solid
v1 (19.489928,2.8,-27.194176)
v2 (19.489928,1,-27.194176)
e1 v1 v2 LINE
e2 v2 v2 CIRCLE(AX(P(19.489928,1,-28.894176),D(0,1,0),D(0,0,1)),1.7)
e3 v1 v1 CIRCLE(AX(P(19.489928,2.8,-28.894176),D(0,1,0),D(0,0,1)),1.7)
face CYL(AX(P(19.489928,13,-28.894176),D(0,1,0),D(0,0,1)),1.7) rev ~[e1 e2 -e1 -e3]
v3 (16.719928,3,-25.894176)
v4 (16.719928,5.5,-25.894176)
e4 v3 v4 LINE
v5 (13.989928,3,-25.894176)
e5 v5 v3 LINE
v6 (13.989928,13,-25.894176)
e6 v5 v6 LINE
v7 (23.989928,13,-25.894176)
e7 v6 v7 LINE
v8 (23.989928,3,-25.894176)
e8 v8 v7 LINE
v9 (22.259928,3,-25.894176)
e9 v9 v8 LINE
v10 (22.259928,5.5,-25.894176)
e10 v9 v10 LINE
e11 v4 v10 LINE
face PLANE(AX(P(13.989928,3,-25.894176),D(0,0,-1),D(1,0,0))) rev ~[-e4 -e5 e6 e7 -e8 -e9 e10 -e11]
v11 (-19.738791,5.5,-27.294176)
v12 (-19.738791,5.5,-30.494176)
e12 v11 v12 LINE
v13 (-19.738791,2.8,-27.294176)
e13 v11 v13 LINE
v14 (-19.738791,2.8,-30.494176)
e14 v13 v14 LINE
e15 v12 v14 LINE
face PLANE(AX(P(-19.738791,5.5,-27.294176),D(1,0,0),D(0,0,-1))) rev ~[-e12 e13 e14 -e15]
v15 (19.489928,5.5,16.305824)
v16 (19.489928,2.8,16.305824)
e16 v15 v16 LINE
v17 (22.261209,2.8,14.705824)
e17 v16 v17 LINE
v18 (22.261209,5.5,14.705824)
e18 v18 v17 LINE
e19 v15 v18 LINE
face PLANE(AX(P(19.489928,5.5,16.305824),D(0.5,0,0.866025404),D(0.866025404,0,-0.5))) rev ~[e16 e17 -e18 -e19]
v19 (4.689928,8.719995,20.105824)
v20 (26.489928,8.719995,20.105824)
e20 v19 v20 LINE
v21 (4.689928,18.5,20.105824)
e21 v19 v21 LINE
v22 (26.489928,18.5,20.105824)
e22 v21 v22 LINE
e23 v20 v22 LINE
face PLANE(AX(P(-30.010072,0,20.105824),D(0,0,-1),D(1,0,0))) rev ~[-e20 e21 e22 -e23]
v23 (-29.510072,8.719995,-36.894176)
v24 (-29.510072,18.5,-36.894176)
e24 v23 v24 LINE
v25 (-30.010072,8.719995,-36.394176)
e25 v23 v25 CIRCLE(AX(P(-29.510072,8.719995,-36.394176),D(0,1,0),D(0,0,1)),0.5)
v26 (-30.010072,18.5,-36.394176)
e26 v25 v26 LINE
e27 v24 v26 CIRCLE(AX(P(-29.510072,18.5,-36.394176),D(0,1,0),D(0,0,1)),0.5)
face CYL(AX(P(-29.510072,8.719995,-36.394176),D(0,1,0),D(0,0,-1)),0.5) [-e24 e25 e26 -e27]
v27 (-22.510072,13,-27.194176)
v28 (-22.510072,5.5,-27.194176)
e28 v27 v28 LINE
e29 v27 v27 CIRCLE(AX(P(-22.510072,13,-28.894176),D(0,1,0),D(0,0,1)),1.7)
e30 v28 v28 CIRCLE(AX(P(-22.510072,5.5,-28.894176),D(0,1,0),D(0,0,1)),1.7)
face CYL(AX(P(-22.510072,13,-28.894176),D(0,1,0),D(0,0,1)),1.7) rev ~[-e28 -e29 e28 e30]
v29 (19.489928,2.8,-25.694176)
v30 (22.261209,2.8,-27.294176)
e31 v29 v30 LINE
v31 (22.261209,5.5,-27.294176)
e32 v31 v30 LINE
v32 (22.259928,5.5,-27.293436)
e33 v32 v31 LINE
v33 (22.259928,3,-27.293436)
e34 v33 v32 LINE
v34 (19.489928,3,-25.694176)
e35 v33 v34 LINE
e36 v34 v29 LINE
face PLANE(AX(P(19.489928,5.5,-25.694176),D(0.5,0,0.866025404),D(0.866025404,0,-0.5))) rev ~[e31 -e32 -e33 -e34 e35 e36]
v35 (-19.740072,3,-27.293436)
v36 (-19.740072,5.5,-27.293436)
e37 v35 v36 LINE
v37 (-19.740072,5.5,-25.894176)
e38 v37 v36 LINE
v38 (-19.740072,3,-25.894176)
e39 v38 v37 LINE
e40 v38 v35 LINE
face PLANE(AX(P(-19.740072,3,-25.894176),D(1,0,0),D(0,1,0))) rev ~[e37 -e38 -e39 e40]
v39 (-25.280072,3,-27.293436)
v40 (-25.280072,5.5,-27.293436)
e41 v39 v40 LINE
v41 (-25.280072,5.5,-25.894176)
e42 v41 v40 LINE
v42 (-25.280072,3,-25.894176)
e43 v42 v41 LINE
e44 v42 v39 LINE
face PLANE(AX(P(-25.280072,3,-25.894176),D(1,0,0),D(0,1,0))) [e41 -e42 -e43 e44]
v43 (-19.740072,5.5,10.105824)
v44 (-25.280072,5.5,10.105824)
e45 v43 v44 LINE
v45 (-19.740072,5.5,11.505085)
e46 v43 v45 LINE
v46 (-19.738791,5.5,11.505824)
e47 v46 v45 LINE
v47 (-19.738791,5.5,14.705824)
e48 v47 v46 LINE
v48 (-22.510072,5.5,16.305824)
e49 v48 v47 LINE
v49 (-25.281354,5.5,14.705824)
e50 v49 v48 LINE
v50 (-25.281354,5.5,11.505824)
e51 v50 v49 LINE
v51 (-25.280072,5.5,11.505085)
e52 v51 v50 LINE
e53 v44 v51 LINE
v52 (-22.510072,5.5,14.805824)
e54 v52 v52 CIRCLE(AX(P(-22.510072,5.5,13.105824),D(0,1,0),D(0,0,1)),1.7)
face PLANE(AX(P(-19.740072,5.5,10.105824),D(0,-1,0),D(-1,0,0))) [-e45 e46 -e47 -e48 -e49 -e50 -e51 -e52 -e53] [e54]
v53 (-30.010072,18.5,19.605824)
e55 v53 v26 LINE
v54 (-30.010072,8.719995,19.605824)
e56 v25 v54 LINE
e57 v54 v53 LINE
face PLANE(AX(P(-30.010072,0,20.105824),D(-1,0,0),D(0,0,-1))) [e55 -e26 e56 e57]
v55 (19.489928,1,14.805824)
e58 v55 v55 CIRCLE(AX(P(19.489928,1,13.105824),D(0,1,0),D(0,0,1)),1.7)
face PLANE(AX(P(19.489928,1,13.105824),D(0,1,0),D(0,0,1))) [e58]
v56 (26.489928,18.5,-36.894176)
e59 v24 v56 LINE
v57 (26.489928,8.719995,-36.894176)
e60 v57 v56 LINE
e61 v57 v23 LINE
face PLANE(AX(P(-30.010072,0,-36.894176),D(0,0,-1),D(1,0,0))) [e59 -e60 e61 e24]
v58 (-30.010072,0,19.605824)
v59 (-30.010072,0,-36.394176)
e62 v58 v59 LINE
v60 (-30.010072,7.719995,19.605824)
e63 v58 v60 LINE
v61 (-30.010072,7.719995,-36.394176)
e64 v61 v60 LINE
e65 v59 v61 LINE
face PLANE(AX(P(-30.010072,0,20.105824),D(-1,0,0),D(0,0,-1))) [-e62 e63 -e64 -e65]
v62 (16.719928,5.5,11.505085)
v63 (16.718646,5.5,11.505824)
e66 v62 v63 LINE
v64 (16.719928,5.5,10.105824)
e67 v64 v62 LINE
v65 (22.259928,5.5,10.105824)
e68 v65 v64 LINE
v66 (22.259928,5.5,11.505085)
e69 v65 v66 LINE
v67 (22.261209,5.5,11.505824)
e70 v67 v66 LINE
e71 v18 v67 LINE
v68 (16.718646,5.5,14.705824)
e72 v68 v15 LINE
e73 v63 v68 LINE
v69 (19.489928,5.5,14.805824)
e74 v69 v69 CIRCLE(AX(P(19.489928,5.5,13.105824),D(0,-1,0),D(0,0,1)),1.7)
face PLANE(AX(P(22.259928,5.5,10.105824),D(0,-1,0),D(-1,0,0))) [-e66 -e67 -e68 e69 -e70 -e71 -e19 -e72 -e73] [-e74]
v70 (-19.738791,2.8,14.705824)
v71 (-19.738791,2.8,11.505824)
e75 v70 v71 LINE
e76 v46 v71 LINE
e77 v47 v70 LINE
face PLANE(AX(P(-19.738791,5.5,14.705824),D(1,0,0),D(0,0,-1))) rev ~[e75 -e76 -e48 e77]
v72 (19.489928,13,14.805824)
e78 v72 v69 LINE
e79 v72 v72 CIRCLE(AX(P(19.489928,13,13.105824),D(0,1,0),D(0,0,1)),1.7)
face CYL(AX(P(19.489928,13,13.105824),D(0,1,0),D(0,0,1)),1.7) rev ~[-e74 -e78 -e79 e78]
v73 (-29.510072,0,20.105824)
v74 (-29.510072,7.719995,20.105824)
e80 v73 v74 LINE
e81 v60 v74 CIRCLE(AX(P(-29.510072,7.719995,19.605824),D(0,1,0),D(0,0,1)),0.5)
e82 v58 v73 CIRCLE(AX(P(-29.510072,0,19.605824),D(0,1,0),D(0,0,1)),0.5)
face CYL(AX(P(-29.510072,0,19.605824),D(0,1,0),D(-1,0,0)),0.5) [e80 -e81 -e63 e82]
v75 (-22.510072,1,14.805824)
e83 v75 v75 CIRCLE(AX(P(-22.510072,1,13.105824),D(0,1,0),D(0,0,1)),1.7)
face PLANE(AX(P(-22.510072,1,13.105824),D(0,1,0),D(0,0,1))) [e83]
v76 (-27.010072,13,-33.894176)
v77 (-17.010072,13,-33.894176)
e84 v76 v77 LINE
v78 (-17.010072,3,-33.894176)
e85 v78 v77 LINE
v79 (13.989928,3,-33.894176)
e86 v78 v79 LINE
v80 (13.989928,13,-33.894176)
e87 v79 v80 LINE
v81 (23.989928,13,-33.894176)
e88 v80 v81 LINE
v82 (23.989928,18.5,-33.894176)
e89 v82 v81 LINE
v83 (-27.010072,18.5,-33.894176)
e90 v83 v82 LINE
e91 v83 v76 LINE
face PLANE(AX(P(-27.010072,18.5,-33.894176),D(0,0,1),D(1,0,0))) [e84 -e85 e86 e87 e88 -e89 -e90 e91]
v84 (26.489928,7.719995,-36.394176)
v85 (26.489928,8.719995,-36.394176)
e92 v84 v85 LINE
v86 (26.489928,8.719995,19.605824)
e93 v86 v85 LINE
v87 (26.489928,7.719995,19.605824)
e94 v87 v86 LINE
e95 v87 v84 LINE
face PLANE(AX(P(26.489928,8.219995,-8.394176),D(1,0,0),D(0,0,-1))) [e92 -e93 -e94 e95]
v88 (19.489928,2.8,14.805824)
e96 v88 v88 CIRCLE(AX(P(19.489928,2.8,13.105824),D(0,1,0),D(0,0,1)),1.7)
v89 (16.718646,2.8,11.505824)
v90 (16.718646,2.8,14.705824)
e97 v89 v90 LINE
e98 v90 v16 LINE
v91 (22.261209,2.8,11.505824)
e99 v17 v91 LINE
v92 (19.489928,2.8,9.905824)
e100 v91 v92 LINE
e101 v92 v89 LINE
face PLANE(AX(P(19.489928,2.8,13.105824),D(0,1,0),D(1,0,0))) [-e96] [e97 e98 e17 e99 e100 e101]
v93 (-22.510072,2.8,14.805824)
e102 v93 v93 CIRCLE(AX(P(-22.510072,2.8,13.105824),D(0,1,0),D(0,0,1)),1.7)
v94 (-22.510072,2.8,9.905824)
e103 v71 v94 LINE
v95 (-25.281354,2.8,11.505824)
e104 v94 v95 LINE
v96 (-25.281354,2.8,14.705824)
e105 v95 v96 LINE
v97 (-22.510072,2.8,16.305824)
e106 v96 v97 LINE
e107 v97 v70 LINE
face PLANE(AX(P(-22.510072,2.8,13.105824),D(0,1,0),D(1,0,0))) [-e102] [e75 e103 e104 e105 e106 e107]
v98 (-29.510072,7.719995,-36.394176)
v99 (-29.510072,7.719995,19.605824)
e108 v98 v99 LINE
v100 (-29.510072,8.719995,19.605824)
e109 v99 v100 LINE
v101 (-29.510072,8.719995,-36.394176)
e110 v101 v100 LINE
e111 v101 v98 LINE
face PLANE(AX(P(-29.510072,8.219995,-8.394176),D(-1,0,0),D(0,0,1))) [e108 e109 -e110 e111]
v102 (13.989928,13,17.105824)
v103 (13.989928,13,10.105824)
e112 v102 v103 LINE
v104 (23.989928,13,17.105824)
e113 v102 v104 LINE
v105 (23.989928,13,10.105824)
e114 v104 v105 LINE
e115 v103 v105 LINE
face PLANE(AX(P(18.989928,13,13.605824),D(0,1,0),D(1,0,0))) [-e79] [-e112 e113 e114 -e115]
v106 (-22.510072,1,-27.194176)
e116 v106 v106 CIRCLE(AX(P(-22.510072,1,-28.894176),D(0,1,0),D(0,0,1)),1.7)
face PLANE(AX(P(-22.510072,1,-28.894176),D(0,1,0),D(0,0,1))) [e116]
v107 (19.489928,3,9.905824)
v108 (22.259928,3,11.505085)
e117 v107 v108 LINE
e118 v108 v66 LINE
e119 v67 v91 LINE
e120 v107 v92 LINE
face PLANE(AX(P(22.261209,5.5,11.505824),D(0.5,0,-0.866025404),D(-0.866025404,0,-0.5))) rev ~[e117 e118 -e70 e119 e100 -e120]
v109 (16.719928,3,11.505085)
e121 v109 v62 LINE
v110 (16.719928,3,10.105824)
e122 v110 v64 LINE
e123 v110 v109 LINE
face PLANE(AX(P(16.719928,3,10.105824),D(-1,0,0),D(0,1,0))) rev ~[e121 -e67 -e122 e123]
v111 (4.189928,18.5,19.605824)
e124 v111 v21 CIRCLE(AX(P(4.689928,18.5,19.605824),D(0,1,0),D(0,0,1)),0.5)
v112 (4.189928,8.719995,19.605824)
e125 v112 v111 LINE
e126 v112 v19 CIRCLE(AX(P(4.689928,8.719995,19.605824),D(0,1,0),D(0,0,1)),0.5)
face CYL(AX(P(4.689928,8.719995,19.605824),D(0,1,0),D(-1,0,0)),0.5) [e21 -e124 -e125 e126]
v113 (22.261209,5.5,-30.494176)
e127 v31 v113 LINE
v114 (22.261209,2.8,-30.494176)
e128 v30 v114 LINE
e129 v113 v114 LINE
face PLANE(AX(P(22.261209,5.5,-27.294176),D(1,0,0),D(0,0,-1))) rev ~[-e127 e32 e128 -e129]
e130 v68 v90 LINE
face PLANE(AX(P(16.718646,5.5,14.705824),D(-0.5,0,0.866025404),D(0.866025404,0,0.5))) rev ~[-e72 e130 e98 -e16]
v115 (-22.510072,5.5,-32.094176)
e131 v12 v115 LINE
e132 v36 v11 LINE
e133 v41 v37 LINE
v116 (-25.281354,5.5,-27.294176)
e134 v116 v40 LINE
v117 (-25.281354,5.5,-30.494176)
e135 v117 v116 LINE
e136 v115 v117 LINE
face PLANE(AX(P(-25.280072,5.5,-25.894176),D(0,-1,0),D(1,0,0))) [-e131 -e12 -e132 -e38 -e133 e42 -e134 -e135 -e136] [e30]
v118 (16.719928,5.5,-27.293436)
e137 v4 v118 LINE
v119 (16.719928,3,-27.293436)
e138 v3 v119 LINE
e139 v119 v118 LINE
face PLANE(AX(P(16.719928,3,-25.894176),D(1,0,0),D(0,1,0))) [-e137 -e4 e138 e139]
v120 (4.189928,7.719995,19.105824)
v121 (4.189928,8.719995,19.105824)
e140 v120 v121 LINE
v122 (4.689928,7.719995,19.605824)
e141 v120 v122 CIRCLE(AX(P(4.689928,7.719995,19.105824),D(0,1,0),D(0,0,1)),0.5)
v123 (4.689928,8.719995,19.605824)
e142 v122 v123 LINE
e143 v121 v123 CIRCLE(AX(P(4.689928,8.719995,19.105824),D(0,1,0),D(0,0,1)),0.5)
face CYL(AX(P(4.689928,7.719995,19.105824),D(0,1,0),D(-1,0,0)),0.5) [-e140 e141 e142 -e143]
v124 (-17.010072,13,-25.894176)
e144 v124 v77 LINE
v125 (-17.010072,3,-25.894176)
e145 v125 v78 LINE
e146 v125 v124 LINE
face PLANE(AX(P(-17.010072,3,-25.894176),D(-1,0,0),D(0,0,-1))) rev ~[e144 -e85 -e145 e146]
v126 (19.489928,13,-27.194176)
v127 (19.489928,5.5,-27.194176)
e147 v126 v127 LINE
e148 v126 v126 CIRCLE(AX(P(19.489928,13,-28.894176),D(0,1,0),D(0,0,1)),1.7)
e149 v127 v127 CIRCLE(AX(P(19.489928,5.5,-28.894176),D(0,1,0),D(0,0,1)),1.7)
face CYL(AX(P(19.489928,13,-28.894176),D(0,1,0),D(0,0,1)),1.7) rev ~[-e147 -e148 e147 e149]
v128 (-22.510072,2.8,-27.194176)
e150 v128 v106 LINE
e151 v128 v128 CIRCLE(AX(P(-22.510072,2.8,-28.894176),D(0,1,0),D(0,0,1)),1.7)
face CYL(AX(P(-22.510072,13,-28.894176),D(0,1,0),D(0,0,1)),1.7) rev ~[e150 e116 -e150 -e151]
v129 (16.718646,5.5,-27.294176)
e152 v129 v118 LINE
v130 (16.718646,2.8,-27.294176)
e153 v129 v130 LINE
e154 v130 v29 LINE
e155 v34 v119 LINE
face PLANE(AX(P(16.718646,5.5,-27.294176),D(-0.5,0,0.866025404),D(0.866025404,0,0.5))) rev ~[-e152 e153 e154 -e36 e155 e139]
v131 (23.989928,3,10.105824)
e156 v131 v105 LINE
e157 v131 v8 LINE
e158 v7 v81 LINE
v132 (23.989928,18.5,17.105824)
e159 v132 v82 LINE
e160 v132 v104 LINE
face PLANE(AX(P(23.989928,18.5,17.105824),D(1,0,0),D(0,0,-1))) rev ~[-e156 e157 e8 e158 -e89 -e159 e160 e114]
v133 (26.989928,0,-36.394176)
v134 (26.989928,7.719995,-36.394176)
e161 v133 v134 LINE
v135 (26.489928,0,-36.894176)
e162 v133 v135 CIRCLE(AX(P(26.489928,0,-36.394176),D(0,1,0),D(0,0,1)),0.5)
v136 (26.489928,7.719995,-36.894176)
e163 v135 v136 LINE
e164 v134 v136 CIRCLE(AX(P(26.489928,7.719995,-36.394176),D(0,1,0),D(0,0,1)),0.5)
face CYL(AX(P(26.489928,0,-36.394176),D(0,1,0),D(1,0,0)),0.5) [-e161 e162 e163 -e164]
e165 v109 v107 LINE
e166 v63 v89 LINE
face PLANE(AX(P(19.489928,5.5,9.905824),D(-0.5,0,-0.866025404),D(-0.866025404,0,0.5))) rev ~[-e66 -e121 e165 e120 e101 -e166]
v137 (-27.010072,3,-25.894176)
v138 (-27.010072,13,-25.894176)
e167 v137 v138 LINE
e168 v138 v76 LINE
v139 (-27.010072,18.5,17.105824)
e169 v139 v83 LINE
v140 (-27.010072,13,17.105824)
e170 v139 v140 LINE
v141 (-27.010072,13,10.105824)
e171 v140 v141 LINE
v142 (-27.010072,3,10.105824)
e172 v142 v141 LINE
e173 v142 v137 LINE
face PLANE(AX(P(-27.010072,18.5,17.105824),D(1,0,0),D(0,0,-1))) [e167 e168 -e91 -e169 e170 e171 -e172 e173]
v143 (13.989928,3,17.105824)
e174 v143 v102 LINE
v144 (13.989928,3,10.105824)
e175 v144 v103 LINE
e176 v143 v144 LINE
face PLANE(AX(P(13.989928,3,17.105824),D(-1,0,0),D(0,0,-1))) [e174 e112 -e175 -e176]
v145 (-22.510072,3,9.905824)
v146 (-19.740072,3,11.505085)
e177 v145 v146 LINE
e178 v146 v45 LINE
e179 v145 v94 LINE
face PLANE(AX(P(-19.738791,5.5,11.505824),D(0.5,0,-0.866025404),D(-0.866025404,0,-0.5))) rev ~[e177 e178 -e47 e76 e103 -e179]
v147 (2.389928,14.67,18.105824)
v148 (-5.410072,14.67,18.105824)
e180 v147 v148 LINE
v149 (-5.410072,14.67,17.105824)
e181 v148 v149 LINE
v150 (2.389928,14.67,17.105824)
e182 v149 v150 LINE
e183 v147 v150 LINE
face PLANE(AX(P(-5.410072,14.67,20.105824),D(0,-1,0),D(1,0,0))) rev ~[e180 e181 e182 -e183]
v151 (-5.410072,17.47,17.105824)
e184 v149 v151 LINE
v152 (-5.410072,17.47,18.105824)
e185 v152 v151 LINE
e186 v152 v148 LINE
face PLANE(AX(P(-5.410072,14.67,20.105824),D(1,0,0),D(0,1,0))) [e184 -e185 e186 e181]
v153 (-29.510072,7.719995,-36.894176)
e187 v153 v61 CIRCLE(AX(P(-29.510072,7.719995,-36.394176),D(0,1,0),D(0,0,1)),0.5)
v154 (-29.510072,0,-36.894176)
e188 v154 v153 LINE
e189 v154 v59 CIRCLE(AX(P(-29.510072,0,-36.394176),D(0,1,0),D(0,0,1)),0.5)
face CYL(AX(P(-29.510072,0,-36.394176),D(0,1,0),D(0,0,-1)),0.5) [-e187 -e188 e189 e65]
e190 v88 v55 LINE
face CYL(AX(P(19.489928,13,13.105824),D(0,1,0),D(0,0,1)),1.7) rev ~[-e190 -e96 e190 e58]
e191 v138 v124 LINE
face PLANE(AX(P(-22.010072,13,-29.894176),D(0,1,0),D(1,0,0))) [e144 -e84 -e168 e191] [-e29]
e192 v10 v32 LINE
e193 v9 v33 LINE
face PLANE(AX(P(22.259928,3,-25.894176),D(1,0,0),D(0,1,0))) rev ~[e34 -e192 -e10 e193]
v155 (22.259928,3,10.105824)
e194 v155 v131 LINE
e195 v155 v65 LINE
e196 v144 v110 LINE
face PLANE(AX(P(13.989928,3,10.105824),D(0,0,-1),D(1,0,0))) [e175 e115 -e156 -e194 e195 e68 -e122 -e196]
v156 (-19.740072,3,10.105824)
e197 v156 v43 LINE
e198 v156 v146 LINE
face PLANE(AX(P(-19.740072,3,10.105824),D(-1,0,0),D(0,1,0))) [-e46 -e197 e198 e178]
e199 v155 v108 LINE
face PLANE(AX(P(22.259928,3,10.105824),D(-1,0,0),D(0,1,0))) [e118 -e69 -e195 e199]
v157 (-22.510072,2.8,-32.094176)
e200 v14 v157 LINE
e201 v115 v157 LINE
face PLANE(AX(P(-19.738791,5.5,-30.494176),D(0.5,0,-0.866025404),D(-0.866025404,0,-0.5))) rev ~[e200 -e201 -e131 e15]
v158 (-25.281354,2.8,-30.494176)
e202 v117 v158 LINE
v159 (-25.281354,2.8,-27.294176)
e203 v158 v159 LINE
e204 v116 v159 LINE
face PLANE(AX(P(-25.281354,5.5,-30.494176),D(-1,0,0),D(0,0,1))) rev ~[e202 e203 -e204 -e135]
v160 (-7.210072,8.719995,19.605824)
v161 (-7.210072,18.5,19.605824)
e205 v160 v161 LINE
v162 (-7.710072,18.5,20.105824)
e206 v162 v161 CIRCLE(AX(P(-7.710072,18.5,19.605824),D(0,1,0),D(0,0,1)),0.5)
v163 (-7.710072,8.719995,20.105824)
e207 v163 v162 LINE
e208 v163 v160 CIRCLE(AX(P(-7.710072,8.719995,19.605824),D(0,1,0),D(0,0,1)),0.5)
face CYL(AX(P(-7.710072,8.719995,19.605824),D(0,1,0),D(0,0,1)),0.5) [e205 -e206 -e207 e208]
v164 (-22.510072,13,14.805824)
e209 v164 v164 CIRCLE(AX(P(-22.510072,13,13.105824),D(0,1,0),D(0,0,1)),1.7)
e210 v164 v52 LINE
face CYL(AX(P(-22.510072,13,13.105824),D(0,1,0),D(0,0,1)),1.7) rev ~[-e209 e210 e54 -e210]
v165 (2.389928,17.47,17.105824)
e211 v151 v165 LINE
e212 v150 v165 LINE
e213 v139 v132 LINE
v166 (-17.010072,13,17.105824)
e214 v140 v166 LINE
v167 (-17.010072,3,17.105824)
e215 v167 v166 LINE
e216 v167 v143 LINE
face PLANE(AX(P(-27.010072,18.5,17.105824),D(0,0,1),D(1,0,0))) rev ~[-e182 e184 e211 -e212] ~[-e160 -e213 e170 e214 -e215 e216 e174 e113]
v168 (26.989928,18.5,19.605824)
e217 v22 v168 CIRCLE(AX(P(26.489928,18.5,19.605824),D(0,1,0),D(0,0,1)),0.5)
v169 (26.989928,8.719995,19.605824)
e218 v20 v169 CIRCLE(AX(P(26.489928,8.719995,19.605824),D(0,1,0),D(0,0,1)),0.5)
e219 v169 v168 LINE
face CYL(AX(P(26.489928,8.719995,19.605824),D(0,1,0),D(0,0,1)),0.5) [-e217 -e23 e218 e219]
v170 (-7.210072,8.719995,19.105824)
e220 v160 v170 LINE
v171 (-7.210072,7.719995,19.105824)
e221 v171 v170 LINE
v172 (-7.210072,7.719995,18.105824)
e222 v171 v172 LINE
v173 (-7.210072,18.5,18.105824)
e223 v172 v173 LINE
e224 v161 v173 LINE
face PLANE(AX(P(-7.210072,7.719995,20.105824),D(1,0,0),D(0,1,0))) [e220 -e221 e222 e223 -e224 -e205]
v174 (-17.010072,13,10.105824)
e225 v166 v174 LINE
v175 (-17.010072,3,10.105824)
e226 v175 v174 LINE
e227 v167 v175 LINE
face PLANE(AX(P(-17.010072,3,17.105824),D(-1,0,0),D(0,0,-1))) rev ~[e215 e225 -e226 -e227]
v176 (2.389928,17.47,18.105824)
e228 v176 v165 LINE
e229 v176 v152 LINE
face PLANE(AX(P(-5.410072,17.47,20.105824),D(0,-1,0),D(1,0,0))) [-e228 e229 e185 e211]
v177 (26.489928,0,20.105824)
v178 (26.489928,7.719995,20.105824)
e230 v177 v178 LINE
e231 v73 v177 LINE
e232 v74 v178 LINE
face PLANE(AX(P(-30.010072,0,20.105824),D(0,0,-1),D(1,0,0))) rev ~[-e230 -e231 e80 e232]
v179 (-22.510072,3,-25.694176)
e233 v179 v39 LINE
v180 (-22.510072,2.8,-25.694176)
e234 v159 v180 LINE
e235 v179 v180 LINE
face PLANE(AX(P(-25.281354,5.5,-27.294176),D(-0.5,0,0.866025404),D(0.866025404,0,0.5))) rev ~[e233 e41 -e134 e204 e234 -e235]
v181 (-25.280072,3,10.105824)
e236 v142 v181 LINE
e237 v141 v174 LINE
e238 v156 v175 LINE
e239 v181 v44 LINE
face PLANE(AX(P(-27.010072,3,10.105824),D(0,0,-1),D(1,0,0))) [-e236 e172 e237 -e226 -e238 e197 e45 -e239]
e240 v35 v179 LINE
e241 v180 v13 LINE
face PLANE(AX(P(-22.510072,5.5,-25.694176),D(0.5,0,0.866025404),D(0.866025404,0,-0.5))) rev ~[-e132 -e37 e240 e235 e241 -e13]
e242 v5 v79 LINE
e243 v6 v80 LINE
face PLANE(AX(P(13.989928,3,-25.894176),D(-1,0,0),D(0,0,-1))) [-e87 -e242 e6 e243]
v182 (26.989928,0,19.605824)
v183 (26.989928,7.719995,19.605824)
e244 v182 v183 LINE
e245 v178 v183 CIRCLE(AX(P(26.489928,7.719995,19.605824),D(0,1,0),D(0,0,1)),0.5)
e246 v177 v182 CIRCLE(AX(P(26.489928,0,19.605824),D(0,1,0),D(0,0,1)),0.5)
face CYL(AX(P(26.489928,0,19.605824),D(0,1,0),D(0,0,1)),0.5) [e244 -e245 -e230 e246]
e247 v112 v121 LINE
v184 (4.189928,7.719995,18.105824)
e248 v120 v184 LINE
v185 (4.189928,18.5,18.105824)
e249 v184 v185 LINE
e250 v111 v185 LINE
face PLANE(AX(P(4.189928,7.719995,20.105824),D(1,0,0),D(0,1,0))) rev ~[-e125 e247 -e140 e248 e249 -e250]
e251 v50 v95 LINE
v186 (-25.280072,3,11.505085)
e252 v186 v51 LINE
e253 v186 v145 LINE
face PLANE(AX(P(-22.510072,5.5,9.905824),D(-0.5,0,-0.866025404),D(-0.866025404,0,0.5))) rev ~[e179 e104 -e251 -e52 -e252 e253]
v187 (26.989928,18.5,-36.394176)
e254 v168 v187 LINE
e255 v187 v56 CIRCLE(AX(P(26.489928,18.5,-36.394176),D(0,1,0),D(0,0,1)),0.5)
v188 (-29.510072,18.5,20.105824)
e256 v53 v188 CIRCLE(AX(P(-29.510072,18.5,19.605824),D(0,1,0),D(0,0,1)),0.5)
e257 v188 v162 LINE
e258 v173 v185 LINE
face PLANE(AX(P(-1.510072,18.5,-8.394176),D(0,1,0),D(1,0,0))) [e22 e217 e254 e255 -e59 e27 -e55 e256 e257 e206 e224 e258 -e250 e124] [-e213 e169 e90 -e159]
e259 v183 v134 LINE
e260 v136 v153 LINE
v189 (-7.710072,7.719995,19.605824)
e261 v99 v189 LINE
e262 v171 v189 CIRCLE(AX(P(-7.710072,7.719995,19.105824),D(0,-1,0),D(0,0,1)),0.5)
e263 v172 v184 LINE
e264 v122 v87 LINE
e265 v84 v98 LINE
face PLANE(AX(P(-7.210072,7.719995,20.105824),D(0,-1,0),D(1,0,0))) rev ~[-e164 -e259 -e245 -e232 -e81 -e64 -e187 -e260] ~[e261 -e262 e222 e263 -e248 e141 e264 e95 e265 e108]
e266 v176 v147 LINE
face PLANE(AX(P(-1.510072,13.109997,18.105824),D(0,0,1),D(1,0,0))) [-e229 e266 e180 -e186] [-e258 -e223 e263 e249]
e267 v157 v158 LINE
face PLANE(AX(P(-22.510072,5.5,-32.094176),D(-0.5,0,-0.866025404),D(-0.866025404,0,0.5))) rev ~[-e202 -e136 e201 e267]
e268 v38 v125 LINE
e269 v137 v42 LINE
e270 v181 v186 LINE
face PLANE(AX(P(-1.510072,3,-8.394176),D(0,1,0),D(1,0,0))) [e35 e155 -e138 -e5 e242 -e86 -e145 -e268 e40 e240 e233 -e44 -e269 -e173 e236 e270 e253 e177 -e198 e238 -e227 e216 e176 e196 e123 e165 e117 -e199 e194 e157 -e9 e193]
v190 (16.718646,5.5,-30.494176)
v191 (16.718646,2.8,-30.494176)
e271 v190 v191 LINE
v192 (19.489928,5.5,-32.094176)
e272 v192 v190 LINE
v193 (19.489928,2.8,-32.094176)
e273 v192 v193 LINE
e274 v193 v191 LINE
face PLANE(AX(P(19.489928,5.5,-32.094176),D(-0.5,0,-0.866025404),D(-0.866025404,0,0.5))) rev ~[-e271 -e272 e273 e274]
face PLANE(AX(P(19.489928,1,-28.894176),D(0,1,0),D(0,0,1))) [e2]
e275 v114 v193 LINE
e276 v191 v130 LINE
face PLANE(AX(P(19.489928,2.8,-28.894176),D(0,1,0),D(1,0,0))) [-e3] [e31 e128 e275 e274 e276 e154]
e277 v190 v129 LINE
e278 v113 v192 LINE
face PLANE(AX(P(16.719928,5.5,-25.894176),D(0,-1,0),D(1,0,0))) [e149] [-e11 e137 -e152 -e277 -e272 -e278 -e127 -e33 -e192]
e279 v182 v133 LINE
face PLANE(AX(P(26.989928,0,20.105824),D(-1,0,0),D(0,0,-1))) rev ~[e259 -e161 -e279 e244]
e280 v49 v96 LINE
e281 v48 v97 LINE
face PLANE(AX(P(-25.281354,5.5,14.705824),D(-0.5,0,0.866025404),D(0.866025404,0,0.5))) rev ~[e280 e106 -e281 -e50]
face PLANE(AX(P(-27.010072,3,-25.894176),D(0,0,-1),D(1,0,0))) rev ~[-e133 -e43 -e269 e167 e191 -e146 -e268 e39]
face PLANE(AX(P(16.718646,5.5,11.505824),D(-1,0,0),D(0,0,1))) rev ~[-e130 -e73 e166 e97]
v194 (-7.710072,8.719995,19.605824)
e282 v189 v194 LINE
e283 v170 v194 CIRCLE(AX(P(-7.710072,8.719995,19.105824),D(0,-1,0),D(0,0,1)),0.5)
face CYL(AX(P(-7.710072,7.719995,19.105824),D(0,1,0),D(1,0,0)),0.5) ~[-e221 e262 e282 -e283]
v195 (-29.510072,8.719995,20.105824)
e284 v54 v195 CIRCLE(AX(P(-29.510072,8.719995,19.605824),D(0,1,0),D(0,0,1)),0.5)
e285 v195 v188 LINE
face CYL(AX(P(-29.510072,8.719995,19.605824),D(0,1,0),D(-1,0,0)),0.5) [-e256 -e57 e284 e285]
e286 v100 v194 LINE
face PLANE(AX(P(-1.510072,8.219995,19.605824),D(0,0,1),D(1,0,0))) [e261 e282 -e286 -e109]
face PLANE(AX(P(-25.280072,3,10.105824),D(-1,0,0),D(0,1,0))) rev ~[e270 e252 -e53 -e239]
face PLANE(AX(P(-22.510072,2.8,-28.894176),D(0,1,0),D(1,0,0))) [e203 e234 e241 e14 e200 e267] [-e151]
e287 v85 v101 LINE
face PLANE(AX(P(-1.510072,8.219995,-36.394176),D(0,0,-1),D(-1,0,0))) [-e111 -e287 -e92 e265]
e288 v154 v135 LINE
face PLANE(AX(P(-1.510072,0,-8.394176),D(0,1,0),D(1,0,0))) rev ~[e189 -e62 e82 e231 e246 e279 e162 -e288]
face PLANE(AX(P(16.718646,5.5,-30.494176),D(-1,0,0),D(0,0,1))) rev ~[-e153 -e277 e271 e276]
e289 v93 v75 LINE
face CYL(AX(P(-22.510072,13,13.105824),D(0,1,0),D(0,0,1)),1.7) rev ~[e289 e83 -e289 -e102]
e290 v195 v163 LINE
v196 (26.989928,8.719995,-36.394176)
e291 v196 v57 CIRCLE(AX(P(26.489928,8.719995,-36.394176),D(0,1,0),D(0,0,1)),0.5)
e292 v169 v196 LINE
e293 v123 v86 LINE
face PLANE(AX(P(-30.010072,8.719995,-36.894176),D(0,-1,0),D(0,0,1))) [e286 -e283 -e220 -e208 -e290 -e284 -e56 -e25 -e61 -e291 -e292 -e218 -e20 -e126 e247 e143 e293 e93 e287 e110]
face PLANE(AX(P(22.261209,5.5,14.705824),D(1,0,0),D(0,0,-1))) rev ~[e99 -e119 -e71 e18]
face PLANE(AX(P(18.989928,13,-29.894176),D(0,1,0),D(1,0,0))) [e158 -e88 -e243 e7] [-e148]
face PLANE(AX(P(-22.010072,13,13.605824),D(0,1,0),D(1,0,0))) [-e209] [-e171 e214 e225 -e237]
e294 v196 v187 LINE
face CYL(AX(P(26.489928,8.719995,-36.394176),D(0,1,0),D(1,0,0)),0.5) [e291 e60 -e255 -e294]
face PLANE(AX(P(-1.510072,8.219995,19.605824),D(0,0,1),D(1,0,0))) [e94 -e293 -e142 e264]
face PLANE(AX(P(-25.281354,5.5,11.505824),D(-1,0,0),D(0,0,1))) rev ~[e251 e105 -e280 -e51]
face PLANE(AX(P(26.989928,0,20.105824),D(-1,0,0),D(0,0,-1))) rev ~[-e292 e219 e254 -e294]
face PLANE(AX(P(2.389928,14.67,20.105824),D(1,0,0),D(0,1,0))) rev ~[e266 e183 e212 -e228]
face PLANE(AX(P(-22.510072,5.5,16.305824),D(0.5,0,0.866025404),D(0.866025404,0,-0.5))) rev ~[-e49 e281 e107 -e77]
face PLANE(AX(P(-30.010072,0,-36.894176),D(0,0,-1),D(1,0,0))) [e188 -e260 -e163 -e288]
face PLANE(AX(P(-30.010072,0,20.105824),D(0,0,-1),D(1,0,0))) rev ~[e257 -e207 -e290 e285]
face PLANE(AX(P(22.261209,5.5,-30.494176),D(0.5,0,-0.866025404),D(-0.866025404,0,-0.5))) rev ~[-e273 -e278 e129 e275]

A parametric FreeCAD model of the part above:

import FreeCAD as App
import Part
import Sketcher
Q = App.Units.Quantity


def edges_at(feature, points):
    """Names of the edges that pass closest to the given points."""
    edges = feature.Shape.Edges
    near = lambda p: min(range(len(edges)), key=lambda i: edges[i].distToShape(Part.Vertex(*p))[0])
    return sorted({f"Edge{near(p) + 1}" for p in points})


def add_polygon(sketch, points):
    """Adds a closed chain of lines whose ends are joined by coincident constraints."""
    first, n = sketch.GeometryCount, len(points)
    for a, b in zip(points, points[1:] + points[:1]):
        sketch.addGeometry(Part.LineSegment(App.Vector(*a, 0), App.Vector(*b, 0)), False)
    for i in range(n):
        sketch.addConstraint(Sketcher.Constraint("Coincident", first + i, 2, first + (i + 1) % n, 1))

doc = App.newDocument("Part")
body = doc.addObject("PartDesign::Body", "Body")

# Sketch on XZ plane
sketch1 = body.newObject("Sketcher::SketchObject", "Sketch")
sketch1.AttachmentSupport = (doc.getObject("XZ_Plane"), [""])
sketch1.MapMode = "FlatFace"
add_polygon(sketch1, [(-30.010072, -36.894176), (-30.010072, 20.105824), (26.989928, 20.105824), (26.989928, -36.894176)])  # lines 0-3
sketch1.addConstraint([
    Sketcher.Constraint("Vertical", 0),
    Sketcher.Constraint("Horizontal", 1),
    Sketcher.Constraint("Vertical", 2),
    Sketcher.Constraint("Horizontal", 3),
    Sketcher.Constraint("Equal", 3, 0),
    Sketcher.Constraint("DistanceX", 1, 1, 1, 2, 57.0),
    Sketcher.Constraint("DistanceX", 0, 2, -1, 1, 30.010072),
    Sketcher.Constraint("DistanceY", -1, 1, 0, 2, 20.105824),
])
pad1 = body.newObject("PartDesign::Pad", "Pad")
pad1.Profile = sketch1
pad1.Length = 18.5
pad1.Reversed = True

# Sketch on XZ plane
sketch2 = body.newObject("Sketcher::SketchObject", "Sketch001")
sketch2.AttachmentSupport = (doc.getObject("XZ_Plane"), [""])
sketch2.MapMode = "FlatFace"
sketch2.AttachmentOffset = App.Placement(App.Vector(0, 0, -18.5), App.Rotation())
add_polygon(sketch2, [(-27.010072, -33.894176), (-27.010072, 17.105824), (23.989928, 17.105824), (23.989928, -33.894176)])  # lines 0-3
sketch2.addConstraint([
    Sketcher.Constraint("Vertical", 0),
    Sketcher.Constraint("Horizontal", 1),
    Sketcher.Constraint("Vertical", 2),
    Sketcher.Constraint("Horizontal", 3),
    Sketcher.Constraint("Equal", 3, 0),
    Sketcher.Constraint("DistanceX", 1, 1, 1, 2, 51.0),
    Sketcher.Constraint("DistanceX", 0, 2, -1, 1, 27.010072),
    Sketcher.Constraint("DistanceY", -1, 1, 0, 2, 17.105824),
])
pocket1 = body.newObject("PartDesign::Pocket", "Pocket")
pocket1.Profile = sketch2
pocket1.Length = 15.5
pocket1.Reversed = True

# Sketch on XZ plane
sketch3 = body.newObject("Sketcher::SketchObject", "Sketch002")
sketch3.AttachmentSupport = (doc.getObject("XZ_Plane"), [""])
sketch3.MapMode = "FlatFace"
sketch3.AttachmentOffset = App.Placement(App.Vector(0, 0, -3), App.Rotation())
add_polygon(sketch3, [(-27.010072, -33.894176), (-27.010072, -25.894176), (-17.010072, -25.894176), (-17.010072, -33.894176)])  # lines 0-3
sketch3.addConstraint([
    Sketcher.Constraint("Vertical", 0),
    Sketcher.Constraint("Horizontal", 1),
    Sketcher.Constraint("Vertical", 2),
    Sketcher.Constraint("Horizontal", 3),
    Sketcher.Constraint("DistanceX", 1, 1, 1, 2, 10.0),
    Sketcher.Constraint("DistanceY", 0, 1, 0, 2, 8.0),
    Sketcher.Constraint("DistanceX", 0, 2, -1, 1, 27.010072),
    Sketcher.Constraint("DistanceY", 0, 2, -1, 1, 25.894176),
])
pad2 = body.newObject("PartDesign::Pad", "Pad001")
pad2.Profile = sketch3
pad2.Length = 10
pad2.Reversed = True

# Sketch on XZ plane
sketch4 = body.newObject("Sketcher::SketchObject", "Sketch003")
sketch4.AttachmentSupport = (doc.getObject("XZ_Plane"), [""])
sketch4.MapMode = "FlatFace"
sketch4.AttachmentOffset = App.Placement(App.Vector(0, 0, -3), App.Rotation())
add_polygon(sketch4, [(13.989928, -33.894176), (13.989928, -25.894176), (23.989928, -25.894176), (23.989928, -33.894176)])  # lines 0-3
sketch4.addConstraint([
    Sketcher.Constraint("Vertical", 0),
    Sketcher.Constraint("Horizontal", 1),
    Sketcher.Constraint("Vertical", 2),
    Sketcher.Constraint("Horizontal", 3),
    Sketcher.Constraint("DistanceX", 1, 1, 1, 2, 10.0),
    Sketcher.Constraint("DistanceY", 0, 1, 0, 2, 8.0),
    Sketcher.Constraint("DistanceX", -1, 1, 0, 2, 13.989928),
    Sketcher.Constraint("DistanceY", 0, 2, -1, 1, 25.894176),
])
pad3 = body.newObject("PartDesign::Pad", "Pad002")
pad3.Profile = sketch4
pad3.Length = 10
pad3.Reversed = True

# Sketch on XZ plane
sketch5 = body.newObject("Sketcher::SketchObject", "Sketch004")
sketch5.AttachmentSupport = (doc.getObject("XZ_Plane"), [""])
sketch5.MapMode = "FlatFace"
sketch5.AttachmentOffset = App.Placement(App.Vector(0, 0, -3), App.Rotation())
add_polygon(sketch5, [(13.989928, 10.105824), (13.989928, 17.105824), (23.989928, 17.105824), (23.989928, 10.105824)])  # lines 0-3
sketch5.addConstraint([
    Sketcher.Constraint("Vertical", 0),
    Sketcher.Constraint("Horizontal", 1),
    Sketcher.Constraint("Vertical", 2),
    Sketcher.Constraint("Horizontal", 3),
    Sketcher.Constraint("DistanceX", 1, 1, 1, 2, 10.0),
    Sketcher.Constraint("DistanceY", 0, 1, 0, 2, 7.0),
    Sketcher.Constraint("DistanceX", -1, 1, 0, 2, 13.989928),
    Sketcher.Constraint("DistanceY", -1, 1, 0, 2, 17.105824),
])
pad4 = body.newObject("PartDesign::Pad", "Pad003")
pad4.Profile = sketch5
pad4.Length = 10
pad4.Reversed = True

# Sketch on XZ plane
sketch6 = body.newObject("Sketcher::SketchObject", "Sketch005")
sketch6.AttachmentSupport = (doc.getObject("XZ_Plane"), [""])
sketch6.MapMode = "FlatFace"
sketch6.AttachmentOffset = App.Placement(App.Vector(0, 0, -3), App.Rotation())
add_polygon(sketch6, [(-27.010072, 10.105824), (-27.010072, 17.105824), (-17.010072, 17.105824), (-17.010072, 10.105824)])  # lines 0-3
sketch6.addConstraint([
    Sketcher.Constraint("Vertical", 0),
    Sketcher.Constraint("Horizontal", 1),
    Sketcher.Constraint("Vertical", 2),
    Sketcher.Constraint("Horizontal", 3),
    Sketcher.Constraint("DistanceX", 1, 1, 1, 2, 10.0),
    Sketcher.Constraint("DistanceY", 0, 1, 0, 2, 7.0),
    Sketcher.Constraint("DistanceX", 0, 2, -1, 1, 27.010072),
    Sketcher.Constraint("DistanceY", -1, 1, 0, 2, 17.105824),
])
pad5 = body.newObject("PartDesign::Pad", "Pad004")
pad5.Profile = sketch6
pad5.Length = 10
pad5.Reversed = True

# Sketch on XZ plane
sketch7 = body.newObject("Sketcher::SketchObject", "Sketch006")
sketch7.AttachmentSupport = (doc.getObject("XZ_Plane"), [""])
sketch7.MapMode = "FlatFace"
sketch7.AttachmentOffset = App.Placement(App.Vector(0, 0, -13), App.Rotation())
sketch7.addGeometry(Part.Circle(App.Vector(19.489928, 13.105824, 0), App.Vector(0, 0, 1), 1.7), False)
sketch7.addConstraint([
    Sketcher.Constraint("Diameter", 0, 3.4),
    Sketcher.Constraint("DistanceX", -1, 1, 0, 3, 19.489928),
    Sketcher.Constraint("DistanceY", -1, 1, 0, 3, 13.105824),
])
pocket2 = body.newObject("PartDesign::Pocket", "Pocket001")
pocket2.Profile = sketch7
pocket2.Length = 12
pocket2.Reversed = True

# Sketch on XZ plane
sketch8 = body.newObject("Sketcher::SketchObject", "Sketch007")
sketch8.AttachmentSupport = (doc.getObject("XZ_Plane"), [""])
sketch8.MapMode = "FlatFace"
sketch8.AttachmentOffset = App.Placement(App.Vector(0, 0, -13), App.Rotation())
sketch8.addGeometry(Part.Circle(App.Vector(-22.510072, 13.105824, 0), App.Vector(0, 0, 1), 1.7), False)
sketch8.addConstraint([
    Sketcher.Constraint("Diameter", 0, 3.4),
    Sketcher.Constraint("DistanceX", 0, 3, -1, 1, 22.510072),
    Sketcher.Constraint("DistanceY", -1, 1, 0, 3, 13.105824),
])
pocket3 = body.newObject("PartDesign::Pocket", "Pocket002")
pocket3.Profile = sketch8
pocket3.Length = 12
pocket3.Reversed = True

# Sketch on XZ plane
sketch9 = body.newObject("Sketcher::SketchObject", "Sketch008")
sketch9.AttachmentSupport = (doc.getObject("XZ_Plane"), [""])
sketch9.MapMode = "FlatFace"
sketch9.AttachmentOffset = App.Placement(App.Vector(0, 0, -13), App.Rotation())
sketch9.addGeometry(Part.Circle(App.Vector(-22.510072, -28.894176, 0), App.Vector(0, 0, 1), 1.7), False)
sketch9.addConstraint([
    Sketcher.Constraint("Diameter", 0, 3.4),
    Sketcher.Constraint("DistanceX", 0, 3, -1, 1, 22.510072),
    Sketcher.Constraint("DistanceY", 0, 3, -1, 1, 28.894176),
])
pocket4 = body.newObject("PartDesign::Pocket", "Pocket003")
pocket4.Profile = sketch9
pocket4.Length = 12
pocket4.Reversed = True

# Sketch on XZ plane
sketch10 = body.newObject("Sketcher::SketchObject", "Sketch009")
sketch10.AttachmentSupport = (doc.getObject("XZ_Plane"), [""])
sketch10.MapMode = "FlatFace"
sketch10.AttachmentOffset = App.Placement(App.Vector(0, 0, -13), App.Rotation())
sketch10.addGeometry(Part.Circle(App.Vector(19.489928, -28.894176, 0), App.Vector(0, 0, 1), 1.7), False)
sketch10.addConstraint([
    Sketcher.Constraint("Diameter", 0, 3.4),
    Sketcher.Constraint("DistanceX", -1, 1, 0, 3, 19.489928),
    Sketcher.Constraint("DistanceY", 0, 3, -1, 1, 28.894176),
])
pocket5 = body.newObject("PartDesign::Pocket", "Pocket004")
pocket5.Profile = sketch10
pocket5.Length = 12
pocket5.Reversed = True

# Sketch on XY plane
sketch11 = body.newObject("Sketcher::SketchObject", "Sketch010")
sketch11.AttachmentSupport = (doc.getObject("XY_Plane"), [""])
sketch11.MapMode = "FlatFace"
sketch11.AttachmentOffset = App.Placement(App.Vector(0, 0, 20.105824), App.Rotation())
add_polygon(sketch11, [(-5.410072, 17.47), (-5.410072, 14.67), (2.389928, 14.67), (2.389928, 17.47)])  # lines 0-3
sketch11.addConstraint([
    Sketcher.Constraint("Vertical", 0),
    Sketcher.Constraint("Horizontal", 1),
    Sketcher.Constraint("Vertical", 2),
    Sketcher.Constraint("Horizontal", 3),
    Sketcher.Constraint("DistanceX", 1, 1, 1, 2, 7.8),
    Sketcher.Constraint("DistanceY", 0, 2, 0, 1, 2.8),
    Sketcher.Constraint("DistanceY", -1, 1, 0, 2, 14.67),
    Sketcher.Constraint("DistanceX", 0, 2, -1, 1, 5.410072),
])
pocket6 = body.newObject("PartDesign::Pocket", "Pocket005")
pocket6.Profile = sketch11
pocket6.Length = 3

# Sketch on XZ plane
sketch12 = body.newObject("Sketcher::SketchObject", "Sketch011")
sketch12.AttachmentSupport = (doc.getObject("XZ_Plane"), [""])
sketch12.MapMode = "FlatFace"
sketch12.AttachmentOffset = App.Placement(App.Vector(0, 0, -5.5), App.Rotation())
add_polygon(sketch12, [(19.489928, -25.694176), (22.261209, -27.294176), (22.261209, -30.494176), (19.489928, -32.094176), (16.718646, -30.494176), (16.718646, -27.294176)])  # lines 0-5
sketch12.addConstraint([
    Sketcher.Constraint("Vertical", 1),
    Sketcher.Constraint("Vertical", 4),
    Sketcher.Constraint("Parallel", 0, 3),
    Sketcher.Constraint("Parallel", 2, 5),
    Sketcher.Constraint("Horizontal", 1, 2, 3, 2),
    Sketcher.Constraint("Horizontal", 0, 2, 4, 2),
    Sketcher.Constraint("Vertical", 2, 2, 5, 2),
    Sketcher.Constraint("Angle", 0, Q("-30 deg")),
    Sketcher.Constraint("DistanceY", 1, 2, 1, 1, 3.2),
    Sketcher.Constraint("Distance", 0, 3.2),
    Sketcher.Constraint("DistanceX", -1, 1, 0, 2, 22.261209),
    Sketcher.Constraint("DistanceY", 0, 2, -1, 1, 27.294176),
])
pocket7 = body.newObject("PartDesign::Pocket", "Pocket006")
pocket7.Profile = sketch12
pocket7.Length = 2.7
pocket7.Reversed = True

# Sketch on XZ plane
sketch13 = body.newObject("Sketcher::SketchObject", "Sketch012")
sketch13.AttachmentSupport = (doc.getObject("XZ_Plane"), [""])
sketch13.MapMode = "FlatFace"
sketch13.AttachmentOffset = App.Placement(App.Vector(0, 0, -5.5), App.Rotation())
add_polygon(sketch13, [(16.718646, 11.505824), (16.718646, 14.705824), (19.489928, 16.305824), (22.261209, 14.705824), (22.261209, 11.505824), (19.489928, 9.905824)])  # lines 0-5
sketch13.addConstraint([
    Sketcher.Constraint("Vertical", 0),
    Sketcher.Constraint("Vertical", 3),
    Sketcher.Constraint("Parallel", 1, 4),
    Sketcher.Constraint("Parallel", 2, 5),
    Sketcher.Constraint("Horizontal", 0, 2, 2, 2),
    Sketcher.Constraint("Horizontal", 3, 2, 5, 2),
    Sketcher.Constraint("Vertical", 1, 2, 4, 2),
    Sketcher.Constraint("Angle", 1, Q("30 deg")),
    Sketcher.Constraint("DistanceY", 0, 1, 0, 2, 3.2),
    Sketcher.Constraint("Distance", 1, 3.2),
    Sketcher.Constraint("DistanceX", -1, 1, 2, 2, 22.261209),
    Sketcher.Constraint("DistanceY", -1, 1, 0, 2, 14.705824),
])
pocket8 = body.newObject("PartDesign::Pocket", "Pocket007")
pocket8.Profile = sketch13
pocket8.Length = 2.7
pocket8.Reversed = True

# Sketch on XY plane
sketch14 = body.newObject("Sketcher::SketchObject", "Sketch013")
sketch14.AttachmentSupport = (doc.getObject("XY_Plane"), [""])
sketch14.MapMode = "FlatFace"
sketch14.AttachmentOffset = App.Placement(App.Vector(0, 0, 10.105824), App.Rotation())
add_polygon(sketch14, [(22.259928, 5.5), (22.259928, 3), (16.719928, 3), (16.719928, 5.5)])  # lines 0-3
sketch14.addConstraint([
    Sketcher.Constraint("Vertical", 0),
    Sketcher.Constraint("Horizontal", 1),
    Sketcher.Constraint("Vertical", 2),
    Sketcher.Constraint("Horizontal", 3),
    Sketcher.Constraint("DistanceY", 0, 2, 0, 1, 2.5),
    Sketcher.Constraint("DistanceY", -1, 1, 0, 2, 3.0),
    Sketcher.Constraint("DistanceX", 1, 2, 1, 1, 5.54),
    Sketcher.Constraint("DistanceX", -1, 1, 0, 2, 22.259928),
])
pocket9 = body.newObject("PartDesign::Pocket", "Pocket008")
pocket9.Profile = sketch14
pocket9.Length = 2.847955
pocket9.Reversed = True

# Sketch on XZ plane
sketch15 = body.newObject("Sketcher::SketchObject", "Sketch014")
sketch15.AttachmentSupport = (doc.getObject("XZ_Plane"), [""])
sketch15.MapMode = "FlatFace"
sketch15.AttachmentOffset = App.Placement(App.Vector(0, 0, -5.5), App.Rotation())
add_polygon(sketch15, [(-19.738791, -27.294176), (-19.738791, -30.494176), (-22.510072, -32.094176), (-25.281354, -30.494176), (-25.281354, -27.294176), (-22.510072, -25.694176)])  # lines 0-5
sketch15.addConstraint([
    Sketcher.Constraint("Vertical", 0),
    Sketcher.Constraint("Vertical", 3),
    Sketcher.Constraint("Parallel", 1, 4),
    Sketcher.Constraint("Parallel", 2, 5),
    Sketcher.Constraint("Horizontal", 0, 2, 2, 2),
    Sketcher.Constraint("Horizontal", 3, 2, 5, 2),
    Sketcher.Constraint("Vertical", 1, 2, 4, 2),
    Sketcher.Constraint("Angle", 1, Q("-150 deg")),
    Sketcher.Constraint("DistanceY", 0, 2, 0, 1, 3.2),
    Sketcher.Constraint("Distance", 1, 3.2),
    Sketcher.Constraint("DistanceX", 0, 2, -1, 1, 19.738791),
    Sketcher.Constraint("DistanceY", 0, 2, -1, 1, 30.494176),
])
pocket10 = body.newObject("PartDesign::Pocket", "Pocket009")
pocket10.Profile = sketch15
pocket10.Length = 2.7
pocket10.Reversed = True

# Sketch on XZ plane
sketch16 = body.newObject("Sketcher::SketchObject", "Sketch015")
sketch16.AttachmentSupport = (doc.getObject("XZ_Plane"), [""])
sketch16.MapMode = "FlatFace"
sketch16.AttachmentOffset = App.Placement(App.Vector(0, 0, -5.5), App.Rotation())
add_polygon(sketch16, [(-19.738791, 11.505824), (-22.510072, 9.905824), (-25.281354, 11.505824), (-25.281354, 14.705824), (-22.510072, 16.305824), (-19.738791, 14.705824)])  # lines 0-5
sketch16.addConstraint([
    Sketcher.Constraint("Vertical", 2),
    Sketcher.Constraint("Vertical", 5),
    Sketcher.Constraint("Parallel", 0, 3),
    Sketcher.Constraint("Parallel", 1, 4),
    Sketcher.Constraint("Horizontal", 2, 2, 4, 2),
    Sketcher.Constraint("Horizontal", 1, 2, 5, 2),
    Sketcher.Constraint("Vertical", 0, 2, 3, 2),
    Sketcher.Constraint("Angle", 0, Q("-150 deg")),
    Sketcher.Constraint("DistanceY", 2, 1, 2, 2, 3.2),
    Sketcher.Constraint("Distance", 0, 3.2),
    Sketcher.Constraint("DistanceX", 4, 2, -1, 1, 19.738791),
    Sketcher.Constraint("DistanceY", -1, 1, 0, 2, 9.905824),
])
pocket11 = body.newObject("PartDesign::Pocket", "Pocket010")
pocket11.Profile = sketch16
pocket11.Length = 2.7
pocket11.Reversed = True

# Sketch on XY plane
sketch17 = body.newObject("Sketcher::SketchObject", "Sketch016")
sketch17.AttachmentSupport = (doc.getObject("XY_Plane"), [""])
sketch17.MapMode = "FlatFace"
sketch17.AttachmentOffset = App.Placement(App.Vector(0, 0, -25.894176), App.Rotation())
add_polygon(sketch17, [(16.719928, 5.5), (16.719928, 3), (22.259928, 3), (22.259928, 5.5)])  # lines 0-3
sketch17.addConstraint([
    Sketcher.Constraint("Vertical", 0),
    Sketcher.Constraint("Horizontal", 1),
    Sketcher.Constraint("Vertical", 2),
    Sketcher.Constraint("Horizontal", 3),
    Sketcher.Constraint("DistanceY", 0, 2, 0, 1, 2.5),
    Sketcher.Constraint("DistanceY", -1, 1, 0, 2, 3.0),
    Sketcher.Constraint("DistanceX", 1, 1, 1, 2, 5.54),
    Sketcher.Constraint("DistanceX", -1, 1, 0, 2, 16.719928),
])
pocket12 = body.newObject("PartDesign::Pocket", "Pocket011")
pocket12.Profile = sketch17
pocket12.Length = 2

# Sketch on XY plane
sketch18 = body.newObject("Sketcher::SketchObject", "Sketch017")
sketch18.AttachmentSupport = (doc.getObject("XY_Plane"), [""])
sketch18.MapMode = "FlatFace"
sketch18.AttachmentOffset = App.Placement(App.Vector(0, 0, -25.894176), App.Rotation())
add_polygon(sketch18, [(-25.280072, 5.5), (-25.280072, 3), (-19.740072, 3), (-19.740072, 5.5)])  # lines 0-3
sketch18.addConstraint([
    Sketcher.Constraint("Vertical", 0),
    Sketcher.Constraint("Horizontal", 1),
    Sketcher.Constraint("Vertical", 2),
    Sketcher.Constraint("Horizontal", 3),
    Sketcher.Constraint("DistanceY", 0, 2, 0, 1, 2.5),
    Sketcher.Constraint("DistanceY", -1, 1, 0, 2, 3.0),
    Sketcher.Constraint("DistanceX", 1, 1, 1, 2, 5.54),
    Sketcher.Constraint("DistanceX", 0, 2, -1, 1, 25.280072),
])
pocket13 = body.newObject("PartDesign::Pocket", "Pocket012")
pocket13.Profile = sketch18
pocket13.Length = 2

# Sketch on XY plane
sketch19 = body.newObject("Sketcher::SketchObject", "Sketch018")
sketch19.AttachmentSupport = (doc.getObject("XY_Plane"), [""])
sketch19.MapMode = "FlatFace"
sketch19.AttachmentOffset = App.Placement(App.Vector(0, 0, 10.105824), App.Rotation())
add_polygon(sketch19, [(-19.740072, 5.5), (-19.740072, 3), (-25.280072, 3), (-25.280072, 5.5)])  # lines 0-3
sketch19.addConstraint([
    Sketcher.Constraint("Vertical", 0),
    Sketcher.Constraint("Horizontal", 1),
    Sketcher.Constraint("Vertical", 2),
    Sketcher.Constraint("Horizontal", 3),
    Sketcher.Constraint("DistanceY", 0, 2, 0, 1, 2.5),
    Sketcher.Constraint("DistanceY", -1, 1, 0, 2, 3.0),
    Sketcher.Constraint("DistanceX", 1, 2, 1, 1, 5.54),
    Sketcher.Constraint("DistanceX", 0, 2, -1, 1, 19.740072),
])
pocket14 = body.newObject("PartDesign::Pocket", "Pocket013")
pocket14.Profile = sketch19
pocket14.Length = 2
pocket14.Reversed = True

# Sketch on YZ plane
sketch20 = body.newObject("Sketcher::SketchObject", "Sketch019")
sketch20.AttachmentSupport = (doc.getObject("YZ_Plane"), [""])
sketch20.MapMode = "FlatFace"
sketch20.AttachmentOffset = App.Placement(App.Vector(0, 0, -30.010072), App.Rotation())
add_polygon(sketch20, [(8.719995, -36.894176), (7.719995, -36.894176), (7.719995, 20.105824), (8.719995, 20.105824)])  # lines 0-3
sketch20.addConstraint([
    Sketcher.Constraint("Horizontal", 0),
    Sketcher.Constraint("Vertical", 1),
    Sketcher.Constraint("Horizontal", 2),
    Sketcher.Constraint("Vertical", 3),
    Sketcher.Constraint("DistanceX", 0, 2, 0, 1, 1.0),
    Sketcher.Constraint("DistanceY", 1, 1, 1, 2, 57.0),
    Sketcher.Constraint("DistanceX", -1, 1, 0, 2, 7.719995),
    Sketcher.Constraint("DistanceY", 0, 2, -1, 1, 36.894176),
])
pocket15 = body.newObject("PartDesign::Pocket", "Pocket014")
pocket15.Profile = sketch20
pocket15.Length = 0.5
pocket15.Reversed = True

# Sketch on XY plane
sketch21 = body.newObject("Sketcher::SketchObject", "Sketch020")
sketch21.AttachmentSupport = (doc.getObject("XY_Plane"), [""])
sketch21.MapMode = "FlatFace"
sketch21.AttachmentOffset = App.Placement(App.Vector(0, 0, 20.105824), App.Rotation())
add_polygon(sketch21, [(-30.010072, 8.719995), (-30.010072, 7.719995), (26.989928, 7.719995), (26.989928, 8.719995)])  # lines 0-3
sketch21.addConstraint([
    Sketcher.Constraint("Vertical", 0),
    Sketcher.Constraint("Horizontal", 1),
    Sketcher.Constraint("Vertical", 2),
    Sketcher.Constraint("Horizontal", 3),
    Sketcher.Constraint("DistanceX", 1, 1, 1, 2, 57.0),
    Sketcher.Constraint("DistanceY", 0, 2, 0, 1, 1.0),
    Sketcher.Constraint("DistanceX", 0, 2, -1, 1, 30.010072),
    Sketcher.Constraint("DistanceY", -1, 1, 0, 2, 7.719995),
])
pocket16 = body.newObject("PartDesign::Pocket", "Pocket015")
pocket16.Profile = sketch21
pocket16.Length = 0.5

# Sketch on YZ plane
sketch22 = body.newObject("Sketcher::SketchObject", "Sketch021")
sketch22.AttachmentSupport = (doc.getObject("YZ_Plane"), [""])
sketch22.MapMode = "FlatFace"
sketch22.AttachmentOffset = App.Placement(App.Vector(0, 0, 26.989928), App.Rotation())
add_polygon(sketch22, [(8.719995, 20.105824), (7.719995, 20.105824), (7.719995, -36.894176), (8.719995, -36.894176)])  # lines 0-3
sketch22.addConstraint([
    Sketcher.Constraint("Horizontal", 0),
    Sketcher.Constraint("Vertical", 1),
    Sketcher.Constraint("Horizontal", 2),
    Sketcher.Constraint("Vertical", 3),
    Sketcher.Constraint("DistanceX", 0, 2, 0, 1, 1.0),
    Sketcher.Constraint("DistanceY", 1, 2, 1, 1, 57.0),
    Sketcher.Constraint("DistanceX", -1, 1, 0, 2, 7.719995),
    Sketcher.Constraint("DistanceY", -1, 1, 0, 2, 20.105824),
])
pocket17 = body.newObject("PartDesign::Pocket", "Pocket016")
pocket17.Profile = sketch22
pocket17.Length = 0.5

# Sketch on XY plane
sketch23 = body.newObject("Sketcher::SketchObject", "Sketch022")
sketch23.AttachmentSupport = (doc.getObject("XY_Plane"), [""])
sketch23.MapMode = "FlatFace"
sketch23.AttachmentOffset = App.Placement(App.Vector(0, 0, -36.894176), App.Rotation())
add_polygon(sketch23, [(26.989928, 8.719995), (26.989928, 7.719995), (-30.010072, 7.719995), (-30.010072, 8.719995)])  # lines 0-3
sketch23.addConstraint([
    Sketcher.Constraint("Vertical", 0),
    Sketcher.Constraint("Horizontal", 1),
    Sketcher.Constraint("Vertical", 2),
    Sketcher.Constraint("Horizontal", 3),
    Sketcher.Constraint("DistanceX", 1, 2, 1, 1, 57.0),
    Sketcher.Constraint("DistanceY", 0, 2, 0, 1, 1.0),
    Sketcher.Constraint("DistanceX", -1, 1, 0, 2, 26.989928),
    Sketcher.Constraint("DistanceY", -1, 1, 0, 2, 7.719995),
])
pocket18 = body.newObject("PartDesign::Pocket", "Pocket017")
pocket18.Profile = sketch23
pocket18.Length = 0.5
pocket18.Reversed = True

# Sketch on XY plane
sketch24 = body.newObject("Sketcher::SketchObject", "Sketch023")
sketch24.AttachmentSupport = (doc.getObject("XY_Plane"), [""])
sketch24.MapMode = "FlatFace"
sketch24.AttachmentOffset = App.Placement(App.Vector(0, 0, 20.105824), App.Rotation())
add_polygon(sketch24, [(-7.210072, 18.5), (-7.210072, 7.719995), (4.189928, 7.719995), (4.189928, 18.5)])  # lines 0-3
sketch24.addConstraint([
    Sketcher.Constraint("Vertical", 0),
    Sketcher.Constraint("Horizontal", 1),
    Sketcher.Constraint("Vertical", 2),
    Sketcher.Constraint("Horizontal", 3),
    Sketcher.Constraint("DistanceX", 1, 1, 1, 2, 11.4),
    Sketcher.Constraint("DistanceY", -1, 1, 2, 2, 18.5),
    Sketcher.Constraint("DistanceY", 0, 2, 0, 1, 10.780005),
    Sketcher.Constraint("DistanceX", 0, 2, -1, 1, 7.210072),
])
pocket19 = body.newObject("PartDesign::Pocket", "Pocket018")
pocket19.Profile = sketch24
pocket19.Length = 2
doc.recompute()

fillet = body.newObject("PartDesign::Fillet", "Fillet")
fillet.Base = (pocket19, edges_at(pocket19, [(-7.21, 13.61, 20.106)]))
fillet.Radius = 0.5
doc.recompute()

fillet2 = body.newObject("PartDesign::Fillet", "Fillet001")
fillet2.Base = (fillet, edges_at(fillet, [(4.19, 13.61, 20.106)]))
fillet2.Radius = 0.5
doc.recompute()

fillet3 = body.newObject("PartDesign::Fillet", "Fillet002")
fillet3.Base = (fillet2, edges_at(fillet2, [(-7.21, 8.22, 19.606)]))
fillet3.Radius = 0.5
doc.recompute()

fillet4 = body.newObject("PartDesign::Fillet", "Fillet003")
fillet4.Base = (fillet3, edges_at(fillet3, [(4.19, 8.22, 19.606)]))
fillet4.Radius = 0.5
doc.recompute()

fillet5 = body.newObject("PartDesign::Fillet", "Fillet004")
fillet5.Base = (fillet4, edges_at(fillet4, [(26.99, 13.61, 20.106)]))
fillet5.Radius = 0.5
doc.recompute()

fillet6 = body.newObject("PartDesign::Fillet", "Fillet005")
fillet6.Base = (fillet5, edges_at(fillet5, [(26.99, 3.86, 20.106)]))
fillet6.Radius = 0.5
doc.recompute()

fillet7 = body.newObject("PartDesign::Fillet", "Fillet006")
fillet7.Base = (fillet6, edges_at(fillet6, [(26.99, 13.61, -36.894)]))
fillet7.Radius = 0.5
doc.recompute()

fillet8 = body.newObject("PartDesign::Fillet", "Fillet007")
fillet8.Base = (fillet7, edges_at(fillet7, [(26.99, 3.86, -36.894)]))
fillet8.Radius = 0.5
doc.recompute()

fillet9 = body.newObject("PartDesign::Fillet", "Fillet008")
fillet9.Base = (fillet8, edges_at(fillet8, [(-30.01, 13.61, -36.894)]))
fillet9.Radius = 0.5
doc.recompute()

fillet10 = body.newObject("PartDesign::Fillet", "Fillet009")
fillet10.Base = (fillet9, edges_at(fillet9, [(-30.01, 3.86, -36.894)]))
fillet10.Radius = 0.5
doc.recompute()

fillet11 = body.newObject("PartDesign::Fillet", "Fillet010")
fillet11.Base = (fillet10, edges_at(fillet10, [(-30.01, 13.61, 20.106)]))
fillet11.Radius = 0.5
doc.recompute()

fillet12 = body.newObject("PartDesign::Fillet", "Fillet011")
fillet12.Base = (fillet11, edges_at(fillet11, [(-30.01, 3.86, 20.106)]))
fillet12.Radius = 0.5

doc.recompute()
